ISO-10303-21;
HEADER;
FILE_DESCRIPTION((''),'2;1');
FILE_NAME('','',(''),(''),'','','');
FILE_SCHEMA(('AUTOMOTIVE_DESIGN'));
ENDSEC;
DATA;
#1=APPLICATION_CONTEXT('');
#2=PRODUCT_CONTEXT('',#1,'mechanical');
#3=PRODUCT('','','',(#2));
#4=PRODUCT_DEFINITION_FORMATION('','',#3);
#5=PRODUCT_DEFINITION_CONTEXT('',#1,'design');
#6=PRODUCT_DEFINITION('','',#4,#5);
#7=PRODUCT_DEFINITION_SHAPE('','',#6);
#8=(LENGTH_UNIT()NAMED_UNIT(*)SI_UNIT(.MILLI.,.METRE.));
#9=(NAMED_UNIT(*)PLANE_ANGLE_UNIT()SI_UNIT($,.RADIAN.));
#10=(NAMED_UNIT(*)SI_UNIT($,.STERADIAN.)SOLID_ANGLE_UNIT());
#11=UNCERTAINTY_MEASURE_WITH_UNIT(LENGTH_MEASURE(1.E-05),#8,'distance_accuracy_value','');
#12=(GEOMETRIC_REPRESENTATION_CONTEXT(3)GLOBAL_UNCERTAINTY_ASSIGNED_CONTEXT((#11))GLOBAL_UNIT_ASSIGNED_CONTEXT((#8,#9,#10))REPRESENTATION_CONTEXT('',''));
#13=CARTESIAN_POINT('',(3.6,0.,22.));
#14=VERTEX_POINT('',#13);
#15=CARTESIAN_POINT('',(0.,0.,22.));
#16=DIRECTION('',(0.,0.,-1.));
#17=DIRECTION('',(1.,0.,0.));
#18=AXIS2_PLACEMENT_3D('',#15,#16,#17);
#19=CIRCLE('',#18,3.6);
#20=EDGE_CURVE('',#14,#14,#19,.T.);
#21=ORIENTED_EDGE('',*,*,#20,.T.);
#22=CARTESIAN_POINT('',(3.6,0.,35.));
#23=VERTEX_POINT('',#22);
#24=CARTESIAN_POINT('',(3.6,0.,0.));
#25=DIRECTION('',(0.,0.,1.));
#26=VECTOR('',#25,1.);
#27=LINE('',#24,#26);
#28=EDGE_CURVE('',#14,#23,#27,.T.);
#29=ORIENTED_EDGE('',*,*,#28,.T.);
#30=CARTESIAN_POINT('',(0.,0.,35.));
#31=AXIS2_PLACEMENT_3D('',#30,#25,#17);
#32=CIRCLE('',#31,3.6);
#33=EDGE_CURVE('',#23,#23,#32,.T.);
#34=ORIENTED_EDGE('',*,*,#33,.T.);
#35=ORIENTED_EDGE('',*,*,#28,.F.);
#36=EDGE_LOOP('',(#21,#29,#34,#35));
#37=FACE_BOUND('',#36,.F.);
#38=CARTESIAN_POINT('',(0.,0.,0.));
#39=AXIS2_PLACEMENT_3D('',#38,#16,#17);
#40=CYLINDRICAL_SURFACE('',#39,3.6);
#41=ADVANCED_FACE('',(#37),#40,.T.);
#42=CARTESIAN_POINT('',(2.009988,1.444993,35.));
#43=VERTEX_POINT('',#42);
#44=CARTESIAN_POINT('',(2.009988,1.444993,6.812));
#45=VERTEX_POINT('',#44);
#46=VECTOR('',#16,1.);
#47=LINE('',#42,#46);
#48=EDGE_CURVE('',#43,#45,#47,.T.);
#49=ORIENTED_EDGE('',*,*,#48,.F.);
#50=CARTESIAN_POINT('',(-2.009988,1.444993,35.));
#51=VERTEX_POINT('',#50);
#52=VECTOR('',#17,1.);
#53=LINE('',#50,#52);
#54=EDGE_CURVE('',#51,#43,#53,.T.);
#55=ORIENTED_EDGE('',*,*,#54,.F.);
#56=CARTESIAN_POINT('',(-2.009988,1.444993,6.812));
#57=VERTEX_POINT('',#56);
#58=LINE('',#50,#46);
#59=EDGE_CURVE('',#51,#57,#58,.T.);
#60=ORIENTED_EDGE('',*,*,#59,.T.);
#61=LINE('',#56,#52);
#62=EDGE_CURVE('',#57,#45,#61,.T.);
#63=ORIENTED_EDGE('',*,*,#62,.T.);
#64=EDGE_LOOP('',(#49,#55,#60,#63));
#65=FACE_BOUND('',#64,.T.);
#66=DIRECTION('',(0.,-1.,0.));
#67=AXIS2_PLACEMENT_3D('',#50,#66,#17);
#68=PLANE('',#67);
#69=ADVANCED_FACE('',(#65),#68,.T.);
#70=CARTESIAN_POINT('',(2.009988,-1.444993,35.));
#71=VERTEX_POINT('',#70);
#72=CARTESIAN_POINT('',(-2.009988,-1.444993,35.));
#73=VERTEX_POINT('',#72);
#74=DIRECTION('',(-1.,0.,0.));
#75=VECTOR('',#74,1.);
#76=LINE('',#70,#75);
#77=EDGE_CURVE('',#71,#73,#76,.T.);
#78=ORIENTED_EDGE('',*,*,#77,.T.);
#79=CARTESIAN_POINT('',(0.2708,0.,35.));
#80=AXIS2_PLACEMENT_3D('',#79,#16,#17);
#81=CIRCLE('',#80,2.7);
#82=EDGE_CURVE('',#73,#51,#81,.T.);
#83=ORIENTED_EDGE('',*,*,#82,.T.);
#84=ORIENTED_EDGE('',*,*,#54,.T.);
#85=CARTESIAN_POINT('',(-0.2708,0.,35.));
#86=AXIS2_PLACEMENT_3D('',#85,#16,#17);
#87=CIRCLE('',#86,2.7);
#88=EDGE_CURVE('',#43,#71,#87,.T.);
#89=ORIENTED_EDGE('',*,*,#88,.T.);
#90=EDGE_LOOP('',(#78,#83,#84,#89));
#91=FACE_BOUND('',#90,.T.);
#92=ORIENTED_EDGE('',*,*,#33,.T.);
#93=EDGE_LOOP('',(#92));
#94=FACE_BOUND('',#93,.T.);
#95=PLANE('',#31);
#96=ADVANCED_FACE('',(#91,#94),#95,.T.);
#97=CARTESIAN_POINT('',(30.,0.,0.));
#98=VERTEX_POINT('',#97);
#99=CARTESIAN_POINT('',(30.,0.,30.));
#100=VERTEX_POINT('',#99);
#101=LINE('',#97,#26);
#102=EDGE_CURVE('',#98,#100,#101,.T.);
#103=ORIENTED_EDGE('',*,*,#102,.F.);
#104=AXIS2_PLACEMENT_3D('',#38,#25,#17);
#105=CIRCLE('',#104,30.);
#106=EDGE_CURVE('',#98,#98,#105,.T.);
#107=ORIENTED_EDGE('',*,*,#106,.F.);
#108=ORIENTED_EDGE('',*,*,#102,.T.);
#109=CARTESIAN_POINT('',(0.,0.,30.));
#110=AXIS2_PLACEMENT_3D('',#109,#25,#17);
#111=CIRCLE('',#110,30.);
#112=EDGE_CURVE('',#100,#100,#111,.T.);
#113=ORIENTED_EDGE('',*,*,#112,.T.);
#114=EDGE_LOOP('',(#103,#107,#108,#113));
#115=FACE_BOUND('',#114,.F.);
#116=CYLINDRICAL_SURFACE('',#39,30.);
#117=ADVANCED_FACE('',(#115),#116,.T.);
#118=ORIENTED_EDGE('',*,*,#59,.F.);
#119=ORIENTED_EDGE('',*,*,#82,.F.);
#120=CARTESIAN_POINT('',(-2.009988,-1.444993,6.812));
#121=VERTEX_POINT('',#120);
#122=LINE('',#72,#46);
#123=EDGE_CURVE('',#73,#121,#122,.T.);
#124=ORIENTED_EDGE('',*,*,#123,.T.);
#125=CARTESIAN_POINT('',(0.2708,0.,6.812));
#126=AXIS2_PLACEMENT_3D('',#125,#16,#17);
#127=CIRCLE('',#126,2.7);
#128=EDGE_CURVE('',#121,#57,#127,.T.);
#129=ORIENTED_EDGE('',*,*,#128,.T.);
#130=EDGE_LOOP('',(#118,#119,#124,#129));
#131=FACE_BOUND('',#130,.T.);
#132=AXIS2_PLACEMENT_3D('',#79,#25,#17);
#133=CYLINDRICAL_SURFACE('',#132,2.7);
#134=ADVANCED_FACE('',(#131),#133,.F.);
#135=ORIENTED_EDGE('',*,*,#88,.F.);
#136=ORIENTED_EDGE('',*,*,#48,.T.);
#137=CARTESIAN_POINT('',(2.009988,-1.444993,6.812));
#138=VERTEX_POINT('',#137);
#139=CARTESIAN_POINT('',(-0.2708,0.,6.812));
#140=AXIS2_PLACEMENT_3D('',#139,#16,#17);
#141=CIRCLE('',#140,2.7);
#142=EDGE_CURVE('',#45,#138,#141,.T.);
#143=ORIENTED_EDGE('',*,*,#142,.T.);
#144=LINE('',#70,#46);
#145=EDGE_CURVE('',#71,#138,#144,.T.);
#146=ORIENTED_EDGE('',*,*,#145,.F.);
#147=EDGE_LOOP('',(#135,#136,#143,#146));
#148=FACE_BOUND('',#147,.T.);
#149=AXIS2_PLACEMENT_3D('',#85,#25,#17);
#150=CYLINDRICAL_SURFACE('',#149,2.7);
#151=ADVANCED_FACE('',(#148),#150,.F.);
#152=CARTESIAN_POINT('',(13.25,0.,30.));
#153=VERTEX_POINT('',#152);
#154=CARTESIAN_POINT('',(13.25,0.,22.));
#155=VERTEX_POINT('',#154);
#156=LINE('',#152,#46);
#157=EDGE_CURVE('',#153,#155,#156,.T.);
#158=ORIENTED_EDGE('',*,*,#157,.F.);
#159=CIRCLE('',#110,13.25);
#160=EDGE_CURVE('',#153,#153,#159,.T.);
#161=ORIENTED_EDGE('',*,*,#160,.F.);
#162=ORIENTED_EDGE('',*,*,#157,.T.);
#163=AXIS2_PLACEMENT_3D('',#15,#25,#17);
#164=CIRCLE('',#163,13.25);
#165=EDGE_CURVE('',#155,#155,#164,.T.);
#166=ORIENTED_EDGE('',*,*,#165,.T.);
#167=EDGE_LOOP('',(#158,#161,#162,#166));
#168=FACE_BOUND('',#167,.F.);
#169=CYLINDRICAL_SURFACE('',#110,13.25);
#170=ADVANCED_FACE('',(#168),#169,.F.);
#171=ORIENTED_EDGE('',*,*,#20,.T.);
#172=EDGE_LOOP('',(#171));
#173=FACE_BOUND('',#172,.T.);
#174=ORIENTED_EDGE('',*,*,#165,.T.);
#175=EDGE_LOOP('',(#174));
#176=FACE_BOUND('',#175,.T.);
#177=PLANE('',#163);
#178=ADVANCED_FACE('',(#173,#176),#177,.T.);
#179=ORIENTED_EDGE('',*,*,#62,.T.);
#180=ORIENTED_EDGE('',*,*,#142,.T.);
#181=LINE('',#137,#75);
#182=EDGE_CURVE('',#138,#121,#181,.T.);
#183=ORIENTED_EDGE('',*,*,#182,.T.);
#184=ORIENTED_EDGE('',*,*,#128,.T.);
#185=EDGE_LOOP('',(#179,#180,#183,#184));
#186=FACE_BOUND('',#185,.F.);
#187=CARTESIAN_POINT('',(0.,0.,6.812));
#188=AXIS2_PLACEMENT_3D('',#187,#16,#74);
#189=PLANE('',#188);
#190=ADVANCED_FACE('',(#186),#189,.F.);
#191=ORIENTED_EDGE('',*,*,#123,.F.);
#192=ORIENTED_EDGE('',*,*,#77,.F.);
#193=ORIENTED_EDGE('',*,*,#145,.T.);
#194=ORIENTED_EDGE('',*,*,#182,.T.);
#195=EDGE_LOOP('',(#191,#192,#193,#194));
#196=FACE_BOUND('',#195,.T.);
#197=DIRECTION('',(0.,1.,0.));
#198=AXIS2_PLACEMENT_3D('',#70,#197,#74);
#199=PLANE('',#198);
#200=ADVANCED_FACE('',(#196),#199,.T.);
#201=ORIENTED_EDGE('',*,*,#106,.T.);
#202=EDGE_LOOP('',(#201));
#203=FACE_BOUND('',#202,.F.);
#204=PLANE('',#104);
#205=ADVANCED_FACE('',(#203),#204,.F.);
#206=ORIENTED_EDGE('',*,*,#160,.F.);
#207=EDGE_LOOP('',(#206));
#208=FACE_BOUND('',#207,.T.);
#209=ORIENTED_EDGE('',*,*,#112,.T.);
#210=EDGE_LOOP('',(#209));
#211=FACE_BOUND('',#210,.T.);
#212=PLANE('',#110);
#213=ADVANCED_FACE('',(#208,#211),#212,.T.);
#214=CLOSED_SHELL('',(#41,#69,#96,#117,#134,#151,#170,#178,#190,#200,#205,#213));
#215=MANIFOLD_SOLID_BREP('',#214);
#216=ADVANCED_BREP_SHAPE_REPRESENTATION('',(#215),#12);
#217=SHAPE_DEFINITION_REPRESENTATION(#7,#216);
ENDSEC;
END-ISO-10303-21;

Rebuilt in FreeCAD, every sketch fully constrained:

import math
import FreeCAD as App
import Part
import Sketcher

V = App.Vector

doc = App.newDocument("Part")
body = doc.addObject("PartDesign::Body", "Body")

# Sketch on XY plane
sketch1 = body.newObject("Sketcher::SketchObject", "Sketch")
sketch1.AttachmentSupport = (doc.getObject("XY_Plane"), [""])
sketch1.MapMode = "FlatFace"
sketch1.addGeometry(Part.Circle(V(0, 0, 0), V(0, 0, 1), 30), False)
sketch1.addConstraint(Sketcher.Constraint("Coincident", 0, 3, -1, 1))
sketch1.addConstraint(Sketcher.Constraint("Diameter", 0, 60.0))
pad1 = body.newObject("PartDesign::Pad", "Pad")
pad1.Profile = sketch1
pad1.Length = 30

# Sketch on XY plane
sketch2 = body.newObject("Sketcher::SketchObject", "Sketch001")
sketch2.AttachmentSupport = (doc.getObject("XY_Plane"), [""])
sketch2.MapMode = "FlatFace"
sketch2.AttachmentOffset = App.Placement(V(0, 0, 30), App.Rotation())
sketch2.addGeometry(Part.Circle(V(0, 0, 0), V(0, 0, 1), 13), False)
sketch2.addConstraint(Sketcher.Constraint("Coincident", 0, 3, -1, 1))
sketch2.addConstraint(Sketcher.Constraint("Diameter", 0, 26.5))
pocket1 = body.newObject("PartDesign::Pocket", "Pocket")
pocket1.Profile = sketch2
pocket1.Length = 8

# Sketch on XY plane
sketch3 = body.newObject("Sketcher::SketchObject", "Sketch002")
sketch3.AttachmentSupport = (doc.getObject("XY_Plane"), [""])
sketch3.MapMode = "FlatFace"
sketch3.addGeometry(Part.Circle(V(0, 0, 0), V(0, 0, 1), 3.6), False)
sketch3.addConstraint(Sketcher.Constraint("Coincident", 0, 3, -1, 1))
sketch3.addConstraint(Sketcher.Constraint("Diameter", 0, 7.2))
pad2 = body.newObject("PartDesign::Pad", "Pad001")
pad2.Profile = sketch3
pad2.Length = 35

# Sketch on XY plane
sketch4 = body.newObject("Sketcher::SketchObject", "Sketch003")
sketch4.AttachmentSupport = (doc.getObject("XY_Plane"), [""])
sketch4.MapMode = "FlatFace"
sketch4.AttachmentOffset = App.Placement(V(0, 0, 35), App.Rotation())
sketch4.addGeometry(Part.LineSegment(V(2, 1.4, 0), V(-2, 1.4, 0)), False)
sketch4.addGeometry(Part.ArcOfCircle(Part.Circle(V(0.3, 0, 0), V(0, 0, 1), 2.7), math.radians(148), math.radians(212)), False)
sketch4.addGeometry(Part.LineSegment(V(-2, -1.4, 0), V(2, -1.4, 0)), False)
sketch4.addGeometry(Part.ArcOfCircle(Part.Circle(V(-0.3, 0, 0), V(0, 0, 1), 2.7), math.radians(-32), math.radians(32)), False)
sketch4.addConstraint(Sketcher.Constraint("Coincident", 0, 2, 1, 1))
sketch4.addConstraint(Sketcher.Constraint("Coincident", 1, 2, 2, 1))
sketch4.addConstraint(Sketcher.Constraint("Coincident", 2, 2, 3, 1))
sketch4.addConstraint(Sketcher.Constraint("Coincident", 3, 2, 0, 1))
sketch4.addConstraint(Sketcher.Constraint("Horizontal", 0))
sketch4.addConstraint(Sketcher.Constraint("Horizontal", 2))
sketch4.addConstraint(Sketcher.Constraint("Equal", 1, 3))
sketch4.addConstraint(Sketcher.Constraint("Symmetric", 1, 3, 3, 3, -1, 1))
sketch4.addConstraint(Sketcher.Constraint("Symmetric", 0, 2, 1, 2, -1))
sketch4.addConstraint(Sketcher.Constraint("Radius", 1, 2.7))
sketch4.addConstraint(Sketcher.Constraint("DistanceX", 0, 2, -1, 1, 2.01))
sketch4.addConstraint(Sketcher.Constraint("DistanceY", 1, 2, 0, 2, 2.89))
pocket2 = body.newObject("PartDesign::Pocket", "Pocket001")
pocket2.Profile = sketch4
pocket2.Length = 28.188

doc.recompute()
